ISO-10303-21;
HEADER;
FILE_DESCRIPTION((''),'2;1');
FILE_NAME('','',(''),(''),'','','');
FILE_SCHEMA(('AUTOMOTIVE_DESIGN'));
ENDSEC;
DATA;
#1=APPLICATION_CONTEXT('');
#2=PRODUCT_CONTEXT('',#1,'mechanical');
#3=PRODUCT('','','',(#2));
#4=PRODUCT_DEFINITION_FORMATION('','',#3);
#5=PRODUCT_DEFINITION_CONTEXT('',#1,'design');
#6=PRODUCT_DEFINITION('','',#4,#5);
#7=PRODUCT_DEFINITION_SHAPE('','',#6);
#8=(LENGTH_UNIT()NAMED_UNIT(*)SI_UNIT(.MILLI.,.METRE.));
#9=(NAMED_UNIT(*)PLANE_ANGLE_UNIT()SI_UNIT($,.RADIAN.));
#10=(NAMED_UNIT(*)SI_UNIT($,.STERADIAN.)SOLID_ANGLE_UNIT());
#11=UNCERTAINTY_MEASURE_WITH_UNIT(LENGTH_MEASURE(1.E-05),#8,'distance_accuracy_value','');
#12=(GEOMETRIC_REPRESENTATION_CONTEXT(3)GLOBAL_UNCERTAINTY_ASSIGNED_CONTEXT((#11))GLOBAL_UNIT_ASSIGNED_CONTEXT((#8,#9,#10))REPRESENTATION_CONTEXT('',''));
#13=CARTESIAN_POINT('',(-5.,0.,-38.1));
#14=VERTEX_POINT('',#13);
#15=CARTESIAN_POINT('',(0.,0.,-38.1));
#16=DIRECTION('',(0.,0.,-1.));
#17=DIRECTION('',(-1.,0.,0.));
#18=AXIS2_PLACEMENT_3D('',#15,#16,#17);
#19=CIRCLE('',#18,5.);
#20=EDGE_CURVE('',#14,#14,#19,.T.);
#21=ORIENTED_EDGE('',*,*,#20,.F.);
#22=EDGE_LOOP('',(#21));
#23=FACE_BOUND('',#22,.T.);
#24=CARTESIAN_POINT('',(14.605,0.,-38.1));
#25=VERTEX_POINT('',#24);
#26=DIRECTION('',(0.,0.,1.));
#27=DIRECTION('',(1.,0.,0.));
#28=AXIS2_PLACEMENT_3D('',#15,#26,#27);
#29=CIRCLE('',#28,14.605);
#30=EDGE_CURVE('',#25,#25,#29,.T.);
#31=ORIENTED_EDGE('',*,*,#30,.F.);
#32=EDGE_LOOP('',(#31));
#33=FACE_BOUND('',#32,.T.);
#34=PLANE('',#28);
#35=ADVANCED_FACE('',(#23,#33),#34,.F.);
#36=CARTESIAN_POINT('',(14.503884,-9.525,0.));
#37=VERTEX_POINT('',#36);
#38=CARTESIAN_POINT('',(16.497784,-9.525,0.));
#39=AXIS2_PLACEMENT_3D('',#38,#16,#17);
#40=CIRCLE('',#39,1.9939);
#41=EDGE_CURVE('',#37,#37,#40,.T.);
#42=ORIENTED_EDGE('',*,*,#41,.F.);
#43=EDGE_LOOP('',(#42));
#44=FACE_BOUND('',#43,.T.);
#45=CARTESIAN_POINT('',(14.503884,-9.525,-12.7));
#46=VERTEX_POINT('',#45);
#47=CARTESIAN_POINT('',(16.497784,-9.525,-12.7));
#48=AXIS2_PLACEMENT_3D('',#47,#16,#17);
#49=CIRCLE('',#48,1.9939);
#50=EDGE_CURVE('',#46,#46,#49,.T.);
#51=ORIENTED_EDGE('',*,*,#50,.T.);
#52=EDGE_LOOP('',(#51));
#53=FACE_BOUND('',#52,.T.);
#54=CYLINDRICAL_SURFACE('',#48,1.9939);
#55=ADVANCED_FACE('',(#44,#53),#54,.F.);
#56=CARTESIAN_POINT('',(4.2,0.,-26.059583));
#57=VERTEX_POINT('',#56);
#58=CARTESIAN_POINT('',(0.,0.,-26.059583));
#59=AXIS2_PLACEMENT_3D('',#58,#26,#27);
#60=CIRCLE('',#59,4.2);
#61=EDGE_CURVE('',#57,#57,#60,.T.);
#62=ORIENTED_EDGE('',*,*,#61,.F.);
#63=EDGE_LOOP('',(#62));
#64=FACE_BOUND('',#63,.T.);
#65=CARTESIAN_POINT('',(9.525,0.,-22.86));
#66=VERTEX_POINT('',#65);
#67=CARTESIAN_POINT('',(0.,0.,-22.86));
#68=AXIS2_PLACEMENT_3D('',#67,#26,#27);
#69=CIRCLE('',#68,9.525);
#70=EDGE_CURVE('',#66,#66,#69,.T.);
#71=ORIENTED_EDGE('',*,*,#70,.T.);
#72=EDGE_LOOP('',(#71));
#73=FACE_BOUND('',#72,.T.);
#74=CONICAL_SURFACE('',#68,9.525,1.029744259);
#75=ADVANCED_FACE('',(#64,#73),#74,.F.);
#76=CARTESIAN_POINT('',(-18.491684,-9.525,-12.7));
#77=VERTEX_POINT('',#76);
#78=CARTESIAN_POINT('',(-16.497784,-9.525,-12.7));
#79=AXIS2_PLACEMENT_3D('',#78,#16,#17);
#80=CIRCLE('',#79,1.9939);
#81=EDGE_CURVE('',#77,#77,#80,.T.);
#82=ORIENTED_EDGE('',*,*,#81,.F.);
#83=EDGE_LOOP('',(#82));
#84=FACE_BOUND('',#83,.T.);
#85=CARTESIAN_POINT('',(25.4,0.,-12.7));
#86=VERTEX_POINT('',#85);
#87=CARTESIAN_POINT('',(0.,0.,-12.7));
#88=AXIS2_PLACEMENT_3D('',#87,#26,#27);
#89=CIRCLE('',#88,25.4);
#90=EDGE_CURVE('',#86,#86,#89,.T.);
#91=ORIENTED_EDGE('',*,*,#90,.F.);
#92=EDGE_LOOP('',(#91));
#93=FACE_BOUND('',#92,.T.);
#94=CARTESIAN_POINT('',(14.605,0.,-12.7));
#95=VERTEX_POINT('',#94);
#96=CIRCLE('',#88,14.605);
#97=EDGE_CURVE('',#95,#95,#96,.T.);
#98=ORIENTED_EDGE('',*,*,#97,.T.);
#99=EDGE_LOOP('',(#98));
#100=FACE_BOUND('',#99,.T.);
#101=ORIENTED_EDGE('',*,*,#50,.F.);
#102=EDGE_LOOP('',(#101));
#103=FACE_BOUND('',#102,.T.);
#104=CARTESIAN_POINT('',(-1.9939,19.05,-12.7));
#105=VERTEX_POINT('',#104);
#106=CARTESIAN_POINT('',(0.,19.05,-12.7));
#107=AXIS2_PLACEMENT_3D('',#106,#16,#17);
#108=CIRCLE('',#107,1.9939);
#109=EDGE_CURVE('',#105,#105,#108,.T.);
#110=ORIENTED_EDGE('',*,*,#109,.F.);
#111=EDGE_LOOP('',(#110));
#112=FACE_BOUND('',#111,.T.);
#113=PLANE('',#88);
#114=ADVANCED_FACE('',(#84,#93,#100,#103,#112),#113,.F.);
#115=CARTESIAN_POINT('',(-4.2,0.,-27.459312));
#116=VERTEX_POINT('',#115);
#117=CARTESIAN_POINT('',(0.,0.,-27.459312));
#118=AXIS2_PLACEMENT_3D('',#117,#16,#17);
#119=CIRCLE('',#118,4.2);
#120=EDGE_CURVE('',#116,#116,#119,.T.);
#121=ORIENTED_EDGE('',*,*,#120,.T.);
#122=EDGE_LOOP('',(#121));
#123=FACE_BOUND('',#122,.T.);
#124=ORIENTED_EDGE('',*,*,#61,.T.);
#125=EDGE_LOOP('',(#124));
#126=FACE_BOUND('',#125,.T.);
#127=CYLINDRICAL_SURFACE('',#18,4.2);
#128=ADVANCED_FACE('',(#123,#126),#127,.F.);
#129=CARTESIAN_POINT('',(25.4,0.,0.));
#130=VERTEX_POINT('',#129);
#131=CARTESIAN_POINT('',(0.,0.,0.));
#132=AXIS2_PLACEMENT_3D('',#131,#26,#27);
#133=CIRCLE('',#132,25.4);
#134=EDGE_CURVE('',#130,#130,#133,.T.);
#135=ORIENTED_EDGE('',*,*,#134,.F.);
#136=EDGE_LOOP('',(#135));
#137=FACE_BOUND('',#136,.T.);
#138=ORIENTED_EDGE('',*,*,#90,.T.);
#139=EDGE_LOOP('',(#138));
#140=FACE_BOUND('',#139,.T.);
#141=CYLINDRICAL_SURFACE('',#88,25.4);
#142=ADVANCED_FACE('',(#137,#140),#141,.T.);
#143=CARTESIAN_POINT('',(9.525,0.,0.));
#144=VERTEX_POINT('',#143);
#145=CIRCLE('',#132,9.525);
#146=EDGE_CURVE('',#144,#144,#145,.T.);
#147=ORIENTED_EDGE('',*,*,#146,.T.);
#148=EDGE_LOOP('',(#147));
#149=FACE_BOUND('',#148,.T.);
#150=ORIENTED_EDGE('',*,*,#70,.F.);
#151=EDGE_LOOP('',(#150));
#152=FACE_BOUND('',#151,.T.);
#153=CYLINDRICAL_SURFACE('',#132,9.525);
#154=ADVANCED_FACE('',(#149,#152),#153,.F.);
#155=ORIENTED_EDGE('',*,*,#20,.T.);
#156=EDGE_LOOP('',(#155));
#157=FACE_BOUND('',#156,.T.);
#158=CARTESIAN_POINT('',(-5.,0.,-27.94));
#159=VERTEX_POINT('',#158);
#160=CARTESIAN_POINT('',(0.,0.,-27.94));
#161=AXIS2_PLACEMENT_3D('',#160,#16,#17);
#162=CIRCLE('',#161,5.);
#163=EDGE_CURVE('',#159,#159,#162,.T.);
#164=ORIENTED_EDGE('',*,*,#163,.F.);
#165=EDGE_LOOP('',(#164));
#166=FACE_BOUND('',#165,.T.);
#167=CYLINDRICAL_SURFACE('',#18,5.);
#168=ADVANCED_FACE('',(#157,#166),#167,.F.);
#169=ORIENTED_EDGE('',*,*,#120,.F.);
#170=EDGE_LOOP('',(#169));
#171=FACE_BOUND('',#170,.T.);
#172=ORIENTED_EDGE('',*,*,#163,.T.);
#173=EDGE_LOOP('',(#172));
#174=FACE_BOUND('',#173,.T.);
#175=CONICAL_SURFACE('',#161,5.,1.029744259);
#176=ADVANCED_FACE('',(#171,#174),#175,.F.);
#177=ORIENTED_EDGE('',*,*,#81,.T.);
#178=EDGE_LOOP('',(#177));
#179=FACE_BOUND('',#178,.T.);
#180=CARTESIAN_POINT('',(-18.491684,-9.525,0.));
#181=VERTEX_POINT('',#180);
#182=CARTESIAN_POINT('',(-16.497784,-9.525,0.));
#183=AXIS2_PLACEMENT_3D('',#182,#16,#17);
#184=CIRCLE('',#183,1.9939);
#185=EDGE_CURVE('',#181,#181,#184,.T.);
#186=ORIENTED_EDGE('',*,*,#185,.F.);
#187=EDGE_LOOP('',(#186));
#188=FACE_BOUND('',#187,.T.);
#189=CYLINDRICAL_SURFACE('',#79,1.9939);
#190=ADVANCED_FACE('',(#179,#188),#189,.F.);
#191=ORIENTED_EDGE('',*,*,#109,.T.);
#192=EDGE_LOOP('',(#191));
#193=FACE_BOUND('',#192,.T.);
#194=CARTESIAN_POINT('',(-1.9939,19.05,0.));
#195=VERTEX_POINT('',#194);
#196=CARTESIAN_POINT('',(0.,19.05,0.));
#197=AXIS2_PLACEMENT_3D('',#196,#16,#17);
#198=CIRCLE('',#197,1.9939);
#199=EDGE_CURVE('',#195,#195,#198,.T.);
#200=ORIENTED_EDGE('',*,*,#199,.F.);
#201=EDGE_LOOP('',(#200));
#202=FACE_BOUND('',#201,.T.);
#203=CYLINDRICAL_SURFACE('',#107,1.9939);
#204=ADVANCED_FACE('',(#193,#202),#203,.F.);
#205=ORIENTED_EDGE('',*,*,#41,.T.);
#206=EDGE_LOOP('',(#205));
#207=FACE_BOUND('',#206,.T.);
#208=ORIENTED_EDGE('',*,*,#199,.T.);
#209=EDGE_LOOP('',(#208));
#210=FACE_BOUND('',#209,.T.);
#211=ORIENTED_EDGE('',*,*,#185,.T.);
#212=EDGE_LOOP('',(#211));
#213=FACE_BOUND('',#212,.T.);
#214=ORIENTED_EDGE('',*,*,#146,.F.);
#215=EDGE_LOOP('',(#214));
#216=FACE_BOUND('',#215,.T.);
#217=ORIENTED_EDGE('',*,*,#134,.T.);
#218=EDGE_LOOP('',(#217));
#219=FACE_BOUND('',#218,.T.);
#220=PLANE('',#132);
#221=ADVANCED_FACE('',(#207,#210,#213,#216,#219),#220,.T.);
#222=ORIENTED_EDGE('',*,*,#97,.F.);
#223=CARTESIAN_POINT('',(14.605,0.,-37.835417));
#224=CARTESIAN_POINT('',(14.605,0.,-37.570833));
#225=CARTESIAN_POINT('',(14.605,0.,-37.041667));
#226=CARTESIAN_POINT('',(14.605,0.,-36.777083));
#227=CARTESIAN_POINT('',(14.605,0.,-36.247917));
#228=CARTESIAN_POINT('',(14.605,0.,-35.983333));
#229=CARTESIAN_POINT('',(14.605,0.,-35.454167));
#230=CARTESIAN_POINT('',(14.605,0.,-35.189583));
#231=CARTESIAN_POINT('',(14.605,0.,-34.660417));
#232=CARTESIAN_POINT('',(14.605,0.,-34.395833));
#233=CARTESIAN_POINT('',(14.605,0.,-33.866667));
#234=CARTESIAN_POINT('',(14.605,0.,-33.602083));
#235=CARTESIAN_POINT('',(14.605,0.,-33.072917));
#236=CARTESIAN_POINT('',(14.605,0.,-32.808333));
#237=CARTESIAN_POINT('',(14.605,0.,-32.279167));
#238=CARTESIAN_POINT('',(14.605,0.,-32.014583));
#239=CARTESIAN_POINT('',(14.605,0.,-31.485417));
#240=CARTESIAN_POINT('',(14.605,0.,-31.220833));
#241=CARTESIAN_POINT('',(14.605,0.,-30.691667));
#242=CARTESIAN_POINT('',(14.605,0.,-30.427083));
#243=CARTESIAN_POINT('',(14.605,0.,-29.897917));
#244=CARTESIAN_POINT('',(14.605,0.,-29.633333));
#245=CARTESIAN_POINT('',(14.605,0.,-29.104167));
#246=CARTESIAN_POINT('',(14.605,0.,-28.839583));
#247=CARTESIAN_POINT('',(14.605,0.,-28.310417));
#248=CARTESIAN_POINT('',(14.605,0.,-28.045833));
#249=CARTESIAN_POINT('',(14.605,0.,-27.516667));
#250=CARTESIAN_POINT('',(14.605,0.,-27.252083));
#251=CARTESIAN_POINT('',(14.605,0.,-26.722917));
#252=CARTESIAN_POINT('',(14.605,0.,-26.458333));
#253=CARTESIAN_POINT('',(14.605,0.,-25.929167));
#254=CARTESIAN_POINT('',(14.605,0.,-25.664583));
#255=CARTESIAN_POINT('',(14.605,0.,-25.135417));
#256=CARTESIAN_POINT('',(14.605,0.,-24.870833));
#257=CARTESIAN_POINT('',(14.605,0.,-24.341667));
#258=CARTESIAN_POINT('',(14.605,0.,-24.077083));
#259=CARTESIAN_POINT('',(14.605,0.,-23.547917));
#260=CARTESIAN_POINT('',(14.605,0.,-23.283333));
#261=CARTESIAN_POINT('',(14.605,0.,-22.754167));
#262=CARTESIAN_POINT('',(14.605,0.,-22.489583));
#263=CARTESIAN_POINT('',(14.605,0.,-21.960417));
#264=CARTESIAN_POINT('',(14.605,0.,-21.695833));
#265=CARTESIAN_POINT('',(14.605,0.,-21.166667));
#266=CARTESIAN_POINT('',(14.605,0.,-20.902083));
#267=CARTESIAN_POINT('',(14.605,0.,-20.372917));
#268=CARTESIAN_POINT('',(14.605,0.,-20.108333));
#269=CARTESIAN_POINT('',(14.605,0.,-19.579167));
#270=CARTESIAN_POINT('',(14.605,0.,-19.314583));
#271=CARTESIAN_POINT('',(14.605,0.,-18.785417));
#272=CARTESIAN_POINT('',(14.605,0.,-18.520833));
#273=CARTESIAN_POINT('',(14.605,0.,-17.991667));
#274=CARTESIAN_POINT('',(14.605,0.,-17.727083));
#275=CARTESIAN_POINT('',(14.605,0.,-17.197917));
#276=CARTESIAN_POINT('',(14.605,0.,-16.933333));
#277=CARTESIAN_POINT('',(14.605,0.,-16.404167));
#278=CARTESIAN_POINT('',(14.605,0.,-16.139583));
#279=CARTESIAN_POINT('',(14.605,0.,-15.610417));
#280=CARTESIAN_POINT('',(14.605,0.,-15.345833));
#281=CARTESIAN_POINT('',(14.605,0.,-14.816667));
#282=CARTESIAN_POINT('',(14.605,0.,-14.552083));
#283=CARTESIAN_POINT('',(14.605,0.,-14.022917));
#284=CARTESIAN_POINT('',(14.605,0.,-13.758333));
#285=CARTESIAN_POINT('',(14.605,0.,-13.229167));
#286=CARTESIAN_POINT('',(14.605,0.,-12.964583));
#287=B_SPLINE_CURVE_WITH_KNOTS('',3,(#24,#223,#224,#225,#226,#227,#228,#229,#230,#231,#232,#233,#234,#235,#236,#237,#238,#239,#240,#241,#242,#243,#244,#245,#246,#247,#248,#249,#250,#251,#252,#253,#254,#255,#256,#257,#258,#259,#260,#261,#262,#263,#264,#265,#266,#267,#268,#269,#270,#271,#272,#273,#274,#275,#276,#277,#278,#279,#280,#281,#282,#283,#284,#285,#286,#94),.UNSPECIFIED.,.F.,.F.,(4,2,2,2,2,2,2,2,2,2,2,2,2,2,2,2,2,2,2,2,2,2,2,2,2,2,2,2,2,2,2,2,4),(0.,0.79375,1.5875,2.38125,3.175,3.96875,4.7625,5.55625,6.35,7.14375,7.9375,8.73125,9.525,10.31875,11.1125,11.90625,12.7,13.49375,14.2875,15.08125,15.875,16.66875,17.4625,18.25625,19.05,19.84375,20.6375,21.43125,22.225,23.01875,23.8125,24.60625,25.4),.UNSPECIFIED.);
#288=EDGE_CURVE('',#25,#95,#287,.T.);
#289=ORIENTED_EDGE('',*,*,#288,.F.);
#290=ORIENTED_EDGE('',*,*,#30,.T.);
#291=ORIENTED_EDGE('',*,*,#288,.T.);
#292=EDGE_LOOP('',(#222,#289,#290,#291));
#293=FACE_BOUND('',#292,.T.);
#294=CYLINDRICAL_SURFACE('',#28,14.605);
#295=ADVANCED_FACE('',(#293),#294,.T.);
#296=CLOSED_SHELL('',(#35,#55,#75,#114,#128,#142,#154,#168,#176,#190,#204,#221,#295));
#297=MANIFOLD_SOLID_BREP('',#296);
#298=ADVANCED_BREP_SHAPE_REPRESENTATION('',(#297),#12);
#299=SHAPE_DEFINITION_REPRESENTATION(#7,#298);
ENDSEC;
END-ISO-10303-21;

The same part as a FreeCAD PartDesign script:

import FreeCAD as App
import Part
import Sketcher
Q = App.Units.Quantity

doc = App.newDocument("Part")
body = doc.addObject("PartDesign::Body", "Body")

# Sketch on XY plane
sketch1 = doc.addObject("Sketcher::SketchObject", "Sketch")
body.addObject(sketch1)
sketch1.AttachmentSupport = (doc.XY_Plane, [""])
sketch1.MapMode = "FlatFace"
sketch1.addGeometry(Part.Circle(App.Vector(0, 0, 0), App.Vector(0, 0, 1), 25.4), False)
sketch1.addConstraint(Sketcher.Constraint("Coincident", 0, 3, -1, 1))
sketch1.addConstraint(Sketcher.Constraint("Diameter", 0, Q("2 in")))
pad1 = doc.addObject("PartDesign::Pad", "Pad")
body.addObject(pad1)
pad1.Profile = sketch1
pad1.Length = Q("0.5 in")
pad1.Reversed = True

# Sketch on XY plane
sketch2 = doc.addObject("Sketcher::SketchObject", "Sketch001")
body.addObject(sketch2)
sketch2.AttachmentSupport = (doc.XY_Plane, [""])
sketch2.MapMode = "FlatFace"
sketch2.addGeometry(Part.Circle(App.Vector(0, 0, 0), App.Vector(0, 0, 1), 14.605), False)
sketch2.addConstraint(Sketcher.Constraint("Coincident", 0, 3, -1, 1))
sketch2.addConstraint(Sketcher.Constraint("Diameter", 0, Q("1.15 in")))
pad2 = doc.addObject("PartDesign::Pad", "Pad001")
body.addObject(pad2)
pad2.Profile = sketch2
pad2.Length = Q("1.5 in")
pad2.Reversed = True

# Sketch on XY plane
sketch3 = doc.addObject("Sketcher::SketchObject", "Sketch002")
body.addObject(sketch3)
sketch3.AttachmentSupport = (doc.XY_Plane, [""])
sketch3.MapMode = "FlatFace"
sketch3.AttachmentOffset = App.Placement(App.Vector(0, 0, -0.5 * 25.4), App.Rotation())
sketch3.addGeometry(Part.Circle(App.Vector(0, 19.05, 0), App.Vector(0, 0, 1), 1.9939), False)
sketch3.addGeometry(Part.Circle(App.Vector(16.497784, -9.525, 0), App.Vector(0, 0, 1), 1.9939), False)
sketch3.addGeometry(Part.Circle(App.Vector(-16.497784, -9.525, 0), App.Vector(0, 0, 1), 1.9939), False)
sketch3.addConstraint(Sketcher.Constraint("Equal", 0, 1))
sketch3.addConstraint(Sketcher.Constraint("Equal", 1, 2))
sketch3.addConstraint(Sketcher.Constraint("Symmetric", 1, 3, 2, 3, -2))
sketch3.addConstraint(Sketcher.Constraint("PointOnObject", 0, 3, -2))
sketch3.addConstraint(Sketcher.Constraint("Diameter", 0, Q("0.157 in")))
sketch3.addConstraint(Sketcher.Constraint("DistanceY", -1, 1, 0, 3, Q("0.75 in")))
sketch3.addConstraint(Sketcher.Constraint("DistanceY", 1, 3, -1, 1, Q("0.375 in")))
sketch3.addConstraint(Sketcher.Constraint("DistanceX", -1, 1, 1, 3, 16.497784))
doc.recompute()
hole = doc.addObject("PartDesign::Hole", "Hole")
body.addObject(hole)
hole.Profile = sketch3
hole.ThreadType = "None"
hole.Diameter = Q("0.157 in")
hole.DepthType = "ThroughAll"
hole.Reversed = True

# Sketch on XY plane
sketch4 = doc.addObject("Sketcher::SketchObject", "Sketch003")
body.addObject(sketch4)
sketch4.AttachmentSupport = (doc.XY_Plane, [""])
sketch4.MapMode = "FlatFace"
sketch4.AttachmentOffset = App.Placement(App.Vector(0, 0, -1.5 * 25.4), App.Rotation())
sketch4.addGeometry(Part.Circle(App.Vector(0, 0, 0), App.Vector(0, 0, 1), 4.2), False)
sketch4.addConstraint(Sketcher.Constraint("Coincident", 0, 3, -1, 1))
sketch4.addConstraint(Sketcher.Constraint("Diameter", 0, 8.4))
doc.recompute()
hole2 = doc.addObject("PartDesign::Hole", "Hole001")
body.addObject(hole2)
hole2.Profile = sketch4
hole2.ThreadType = "None"
hole2.Diameter = 8.4
hole2.DepthType = "ThroughAll"
hole2.Reversed = True

# Sketch on XY plane
sketch5 = doc.addObject("Sketcher::SketchObject", "Sketch004")
body.addObject(sketch5)
sketch5.AttachmentSupport = (doc.XY_Plane, [""])
sketch5.MapMode = "FlatFace"
sketch5.AttachmentOffset = App.Placement(App.Vector(0, 0, -1.5 * 25.4), App.Rotation())
sketch5.addGeometry(Part.Circle(App.Vector(0, 0, 0), App.Vector(0, 0, 1), 5), False)
sketch5.addConstraint(Sketcher.Constraint("Coincident", 0, 3, -1, 1))
sketch5.addConstraint(Sketcher.Constraint("Diameter", 0, 10.0))
doc.recompute()
hole3 = doc.addObject("PartDesign::Hole", "Hole002")
body.addObject(hole3)
hole3.Profile = sketch5
hole3.ThreadType = "None"
hole3.Diameter = 10
hole3.DepthType = "Dimension"
hole3.Depth = Q("0.4 in")
hole3.DrillPoint = "Angled"
hole3.DrillPointAngle = 118
hole3.Reversed = True

# Sketch on XY plane
sketch6 = doc.addObject("Sketcher::SketchObject", "Sketch005")
body.addObject(sketch6)
sketch6.AttachmentSupport = (doc.XY_Plane, [""])
sketch6.MapMode = "FlatFace"
sketch6.addGeometry(Part.Circle(App.Vector(0, 0, 0), App.Vector(0, 0, 1), 9.525), False)
sketch6.addConstraint(Sketcher.Constraint("Coincident", 0, 3, -1, 1))
sketch6.addConstraint(Sketcher.Constraint("Diameter", 0, Q("0.75 in")))
doc.recompute()
hole4 = doc.addObject("PartDesign::Hole", "Hole003")
body.addObject(hole4)
hole4.Profile = sketch6
hole4.ThreadType = "None"
hole4.Diameter = Q("0.75 in")
hole4.DepthType = "Dimension"
hole4.Depth = Q("0.9 in")
hole4.DrillPoint = "Angled"
hole4.DrillPointAngle = 118

doc.recompute()
